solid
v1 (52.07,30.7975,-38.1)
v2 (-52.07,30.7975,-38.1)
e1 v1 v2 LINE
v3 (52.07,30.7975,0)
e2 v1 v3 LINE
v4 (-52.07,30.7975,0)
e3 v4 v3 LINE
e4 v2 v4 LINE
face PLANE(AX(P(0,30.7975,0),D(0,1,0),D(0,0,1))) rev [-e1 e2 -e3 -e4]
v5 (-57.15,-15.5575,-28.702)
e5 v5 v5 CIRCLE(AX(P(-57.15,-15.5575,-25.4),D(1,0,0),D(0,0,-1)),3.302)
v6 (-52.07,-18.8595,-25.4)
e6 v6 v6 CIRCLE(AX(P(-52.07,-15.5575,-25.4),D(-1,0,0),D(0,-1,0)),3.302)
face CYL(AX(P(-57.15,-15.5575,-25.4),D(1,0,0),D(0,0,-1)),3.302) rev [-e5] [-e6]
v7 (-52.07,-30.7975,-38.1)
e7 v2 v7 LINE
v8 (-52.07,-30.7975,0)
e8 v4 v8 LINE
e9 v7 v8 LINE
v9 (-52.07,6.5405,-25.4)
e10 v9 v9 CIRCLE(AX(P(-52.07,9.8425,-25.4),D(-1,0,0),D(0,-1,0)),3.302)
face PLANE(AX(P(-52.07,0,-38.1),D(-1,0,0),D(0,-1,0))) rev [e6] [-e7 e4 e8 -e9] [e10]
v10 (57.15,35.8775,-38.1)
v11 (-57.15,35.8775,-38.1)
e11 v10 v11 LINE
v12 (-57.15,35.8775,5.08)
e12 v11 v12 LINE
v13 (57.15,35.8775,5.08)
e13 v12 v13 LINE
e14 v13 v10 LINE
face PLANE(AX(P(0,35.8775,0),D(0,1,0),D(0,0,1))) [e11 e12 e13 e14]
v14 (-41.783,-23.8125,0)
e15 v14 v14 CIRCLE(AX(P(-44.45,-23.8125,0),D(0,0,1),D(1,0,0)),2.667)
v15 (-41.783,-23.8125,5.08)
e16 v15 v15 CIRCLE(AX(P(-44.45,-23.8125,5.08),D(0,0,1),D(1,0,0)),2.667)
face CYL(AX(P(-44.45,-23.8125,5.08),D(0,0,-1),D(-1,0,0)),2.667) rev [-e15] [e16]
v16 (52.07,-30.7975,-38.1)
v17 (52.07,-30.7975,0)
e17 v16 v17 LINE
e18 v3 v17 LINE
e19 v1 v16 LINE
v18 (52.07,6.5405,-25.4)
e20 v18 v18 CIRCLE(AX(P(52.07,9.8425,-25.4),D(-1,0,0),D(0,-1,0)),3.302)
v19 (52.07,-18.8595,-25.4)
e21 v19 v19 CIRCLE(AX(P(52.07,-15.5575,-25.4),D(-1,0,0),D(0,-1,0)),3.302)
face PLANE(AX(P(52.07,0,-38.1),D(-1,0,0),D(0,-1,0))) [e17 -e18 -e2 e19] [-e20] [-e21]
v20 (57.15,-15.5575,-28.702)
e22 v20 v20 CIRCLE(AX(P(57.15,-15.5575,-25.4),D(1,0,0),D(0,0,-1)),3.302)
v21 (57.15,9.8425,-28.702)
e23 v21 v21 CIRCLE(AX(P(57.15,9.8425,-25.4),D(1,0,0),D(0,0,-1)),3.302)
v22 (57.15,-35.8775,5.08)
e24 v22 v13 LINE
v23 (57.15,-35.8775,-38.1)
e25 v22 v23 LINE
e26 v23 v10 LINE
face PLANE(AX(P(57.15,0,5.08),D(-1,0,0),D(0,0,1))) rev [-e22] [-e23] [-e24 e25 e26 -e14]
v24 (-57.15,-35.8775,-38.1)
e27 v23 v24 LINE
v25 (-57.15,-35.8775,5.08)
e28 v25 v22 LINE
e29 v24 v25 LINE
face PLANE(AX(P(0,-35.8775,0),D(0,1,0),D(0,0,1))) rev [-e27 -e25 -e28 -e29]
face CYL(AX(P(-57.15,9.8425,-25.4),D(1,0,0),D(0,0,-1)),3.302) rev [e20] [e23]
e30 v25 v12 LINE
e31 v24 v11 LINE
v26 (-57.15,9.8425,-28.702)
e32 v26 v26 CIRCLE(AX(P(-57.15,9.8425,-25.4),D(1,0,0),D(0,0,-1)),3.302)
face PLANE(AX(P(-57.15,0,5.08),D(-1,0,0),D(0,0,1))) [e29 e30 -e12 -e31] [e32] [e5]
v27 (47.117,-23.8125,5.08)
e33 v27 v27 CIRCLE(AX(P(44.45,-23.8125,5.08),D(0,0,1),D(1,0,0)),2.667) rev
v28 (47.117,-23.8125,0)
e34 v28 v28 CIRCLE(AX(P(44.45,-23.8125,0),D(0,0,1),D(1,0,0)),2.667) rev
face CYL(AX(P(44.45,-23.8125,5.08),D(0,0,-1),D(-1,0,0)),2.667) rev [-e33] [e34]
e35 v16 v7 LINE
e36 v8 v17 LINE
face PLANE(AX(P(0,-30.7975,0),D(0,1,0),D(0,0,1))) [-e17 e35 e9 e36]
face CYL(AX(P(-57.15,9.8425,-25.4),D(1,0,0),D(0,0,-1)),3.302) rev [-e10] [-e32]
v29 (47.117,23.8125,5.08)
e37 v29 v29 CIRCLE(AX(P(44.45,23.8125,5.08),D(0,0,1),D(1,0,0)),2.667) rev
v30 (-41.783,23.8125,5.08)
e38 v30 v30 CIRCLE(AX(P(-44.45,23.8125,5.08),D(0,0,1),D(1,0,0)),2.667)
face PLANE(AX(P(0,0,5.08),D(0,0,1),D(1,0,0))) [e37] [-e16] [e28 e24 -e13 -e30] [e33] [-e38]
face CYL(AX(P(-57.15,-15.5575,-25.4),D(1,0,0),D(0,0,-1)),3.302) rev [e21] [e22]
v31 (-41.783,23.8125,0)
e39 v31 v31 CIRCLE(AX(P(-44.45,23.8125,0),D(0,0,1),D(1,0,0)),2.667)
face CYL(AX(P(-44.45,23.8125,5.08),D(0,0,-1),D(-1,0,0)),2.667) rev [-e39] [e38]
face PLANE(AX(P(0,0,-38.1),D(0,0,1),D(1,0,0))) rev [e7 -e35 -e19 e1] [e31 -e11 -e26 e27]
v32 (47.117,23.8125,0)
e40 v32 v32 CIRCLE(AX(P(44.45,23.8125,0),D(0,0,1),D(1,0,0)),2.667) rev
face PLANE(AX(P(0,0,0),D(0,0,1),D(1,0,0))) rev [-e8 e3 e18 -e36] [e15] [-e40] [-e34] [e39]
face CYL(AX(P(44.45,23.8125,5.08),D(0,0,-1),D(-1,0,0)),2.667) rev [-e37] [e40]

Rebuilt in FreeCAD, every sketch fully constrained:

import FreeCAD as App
import Part
import Sketcher
from FreeCAD import Vector
Q = App.Units.Quantity


def add_polygon(sketch, points):
    """Adds a closed chain of lines whose ends are joined by coincident constraints."""
    first, n = sketch.GeometryCount, len(points)
    for a, b in zip(points, points[1:] + points[:1]):
        sketch.addGeometry(Part.LineSegment(App.Vector(*a, 0), App.Vector(*b, 0)), False)
    for i in range(n):
        sketch.addConstraint(Sketcher.Constraint("Coincident", first + i, 2, first + (i + 1) % n, 1))

doc = App.newDocument("Part")
params = doc.addObject("Spreadsheet::Sheet", "Params")
for row, (alias, value) in enumerate([
    ("sketch1_diameter", "0.21 in"),
    ("sketch1_width", "4.5 in"),
    ("sketch1_height", "2.425 in"),
    ("pad1_length", "0.2 in"),
    ("sketch2_width", "0.2 in"),
    ("sketch2_height", "2.425 in"),
    ("pad2_length", "1.5 in"),
    ("sketch3_diameter", "0.26 in"),
    ("sketch4_width", "4.5 in"),
    ("sketch4_height", "1.7 in"),
    ("pad3_length", "0.2 in"),
    ("sketch5_width", "4.5 in"),
    ("sketch5_height", "1.7 in"),
    ("pad4_length", "0.2 in"),
], start=1):
    params.set(f"A{row}", alias)
    params.set(f"B{row}", "=" + value)
    params.setAlias(f"B{row}", alias)

body = doc.addObject("PartDesign::Body", "Body")

sketch1 = body.newObject("Sketcher::SketchObject", "Sketch")
sketch1.AttachmentSupport = (doc.getObject("XY_Plane"), [""])
sketch1.MapMode = "FlatFace"
add_polygon(sketch1, [(-57.1, 30.8), (-57.1, -30.8), (57.1, -30.8), (57.1, 30.8)])
sketch1.addGeometry(Part.Circle(Vector(44.5, 23.8, 0), Vector(0, 0, 1), 2.7), False)
sketch1.addGeometry(Part.Circle(Vector(-44.5, -23.8, 0), Vector(0, 0, 1), 2.7), False)
sketch1.addGeometry(Part.Circle(Vector(44.5, -23.8, 0), Vector(0, 0, 1), 2.7), False)
sketch1.addGeometry(Part.Circle(Vector(-44.5, 23.8, 0), Vector(0, 0, 1), 2.7), False)
sketch1.addConstraint([
    Sketcher.Constraint("Vertical", 0),
    Sketcher.Constraint("Horizontal", 1),
    Sketcher.Constraint("Vertical", 2),
    Sketcher.Constraint("Horizontal", 3),
    Sketcher.Constraint("Equal", 4, 5),
    Sketcher.Constraint("Equal", 5, 6),
    Sketcher.Constraint("Equal", 6, 7),
    Sketcher.Constraint("Symmetric", 4, 3, 5, 3, -1, 1),
    Sketcher.Constraint("Symmetric", 6, 3, 7, 3, -1, 1),
    Sketcher.Constraint("Symmetric", 0, 2, 2, 2, -1, 1),
    Sketcher.Constraint("Symmetric", 5, 3, 6, 3, -2),
    Sketcher.Constraint("Diameter", 4, Q("0.21 in")),
    Sketcher.Constraint("DistanceX", 1, 1, 1, 2, Q("4.5 in")),
    Sketcher.Constraint("DistanceX", 0, 2, 6, 3, Q("4 in")),
    Sketcher.Constraint("DistanceY", 0, 2, 0, 1, Q("2.425 in")),
    Sketcher.Constraint("DistanceY", 0, 2, 7, 3, Q("2.15 in")),
])
sketch1.setExpression("Constraints[15]", "Params.sketch1_diameter")
sketch1.setExpression("Constraints[16]", "Params.sketch1_width")
sketch1.setExpression("Constraints[18]", "Params.sketch1_height")
pad1 = body.newObject("PartDesign::Pad", "Pad")
pad1.Profile = sketch1
pad1.setExpression("Length", "Params.pad1_length")

sketch2 = body.newObject("Sketcher::SketchObject", "Sketch001")
sketch2.AttachmentSupport = (doc.getObject("XY_Plane"), [""])
sketch2.MapMode = "FlatFace"
add_polygon(sketch2, [(-57, 31), (-57, -31), (-52, -31), (-52, 31)])
add_polygon(sketch2, [(52, 31), (52, -31), (57, -31), (57, 31)])
sketch2.addConstraint([
    Sketcher.Constraint("Vertical", 0),
    Sketcher.Constraint("Horizontal", 1),
    Sketcher.Constraint("Vertical", 2),
    Sketcher.Constraint("Horizontal", 3),
    Sketcher.Constraint("Vertical", 4),
    Sketcher.Constraint("Horizontal", 5),
    Sketcher.Constraint("Vertical", 6),
    Sketcher.Constraint("Horizontal", 7),
    Sketcher.Constraint("Symmetric", 2, 2, 4, 2, -1, 1),
    Sketcher.Constraint("Symmetric", 0, 2, 6, 2, -1, 1),
    Sketcher.Constraint("Horizontal", 1, 2, 4, 2),
    Sketcher.Constraint("DistanceX", 1, 1, 1, 2, Q("0.2 in")),
    Sketcher.Constraint("DistanceX", 1, 2, 4, 2, Q("4.1 in")),
    Sketcher.Constraint("DistanceY", 0, 2, 0, 1, Q("2.425 in")),
])
sketch2.setExpression("Constraints[19]", "Params.sketch2_width")
sketch2.setExpression("Constraints[21]", "Params.sketch2_height")
pad2 = body.newObject("PartDesign::Pad", "Pad001")
pad2.Profile = sketch2
pad2.setExpression("Length", "Params.pad2_length")
pad2.Reversed = True

sketch3 = body.newObject("Sketcher::SketchObject", "Sketch002")
sketch3.AttachmentSupport = (doc.getObject("YZ_Plane"), [""])
sketch3.MapMode = "FlatFace"
sketch3.AttachmentOffset = App.Placement(Vector(0, 0, 2.25 * 25.4), App.Rotation())
sketch3.addGeometry([
    Part.Circle(Vector(-15.6, -25.4, 0), Vector(0, 0, 1), 3.3),
    Part.Circle(Vector(9.8, -25.4, 0), Vector(0, 0, 1), 3.3),
], False)
sketch3.addConstraint([
    Sketcher.Constraint("Equal", 0, 1),
    Sketcher.Constraint("Horizontal", 0, 3, 1, 3),
    Sketcher.Constraint("Diameter", 0, Q("0.26 in")),
    Sketcher.Constraint("DistanceY", 0, 3, -1, 1, Q("1 in")),
    Sketcher.Constraint("DistanceX", 0, 3, 1, 3, Q("1 in")),
    Sketcher.Constraint("DistanceX", 0, 3, -1, 1, Q("0.6125 in")),
])
sketch3.setExpression("Constraints[2]", "Params.sketch3_diameter")
pocket1 = body.newObject("PartDesign::Pocket", "Pocket")
pocket1.Profile = sketch3
pocket1.Type = "ThroughAll"

sketch4 = body.newObject("Sketcher::SketchObject", "Sketch003")
sketch4.AttachmentSupport = (doc.getObject("XZ_Plane"), [""])
sketch4.MapMode = "FlatFace"
sketch4.AttachmentOffset = App.Placement(Vector(0, 0, -1.2125 * 25.4), App.Rotation())
add_polygon(sketch4, [(-57, -38), (-57, 5), (57, 5), (57, -38)])
sketch4.addConstraint([
    Sketcher.Constraint("Vertical", 0),
    Sketcher.Constraint("Horizontal", 1),
    Sketcher.Constraint("Vertical", 2),
    Sketcher.Constraint("Horizontal", 3),
    Sketcher.Constraint("DistanceX", 1, 1, 1, 2, Q("4.5 in")),
    Sketcher.Constraint("DistanceY", 0, 1, 0, 2, Q("1.7 in")),
    Sketcher.Constraint("DistanceY", -1, 1, 0, 2, Q("0.2 in")),
    Sketcher.Constraint("DistanceX", 0, 2, -1, 1, Q("2.25 in")),
])
sketch4.setExpression("Constraints[8]", "Params.sketch4_width")
sketch4.setExpression("Constraints[9]", "Params.sketch4_height")
pad3 = body.newObject("PartDesign::Pad", "Pad002")
pad3.Profile = sketch4
pad3.setExpression("Length", "Params.pad3_length")
pad3.Reversed = True

sketch5 = body.newObject("Sketcher::SketchObject", "Sketch004")
sketch5.AttachmentSupport = (doc.getObject("XZ_Plane"), [""])
sketch5.MapMode = "FlatFace"
sketch5.AttachmentOffset = App.Placement(Vector(0, 0, 1.2125 * 25.4), App.Rotation())
add_polygon(sketch5, [(-57, -38), (-57, 5), (57, 5), (57, -38)])
sketch5.addConstraint([
    Sketcher.Constraint("Vertical", 0),
    Sketcher.Constraint("Horizontal", 1),
    Sketcher.Constraint("Vertical", 2),
    Sketcher.Constraint("Horizontal", 3),
    Sketcher.Constraint("DistanceX", 1, 1, 1, 2, Q("4.5 in")),
    Sketcher.Constraint("DistanceY", 0, 1, 0, 2, Q("1.7 in")),
    Sketcher.Constraint("DistanceY", -1, 1, 0, 2, Q("0.2 in")),
    Sketcher.Constraint("DistanceX", 0, 2, -1, 1, Q("2.25 in")),
])
sketch5.setExpression("Constraints[8]", "Params.sketch5_width")
sketch5.setExpression("Constraints[9]", "Params.sketch5_height")
pad4 = body.newObject("PartDesign::Pad", "Pad003")
pad4.Profile = sketch5
pad4.setExpression("Length", "Params.pad4_length")

doc.recompute()
